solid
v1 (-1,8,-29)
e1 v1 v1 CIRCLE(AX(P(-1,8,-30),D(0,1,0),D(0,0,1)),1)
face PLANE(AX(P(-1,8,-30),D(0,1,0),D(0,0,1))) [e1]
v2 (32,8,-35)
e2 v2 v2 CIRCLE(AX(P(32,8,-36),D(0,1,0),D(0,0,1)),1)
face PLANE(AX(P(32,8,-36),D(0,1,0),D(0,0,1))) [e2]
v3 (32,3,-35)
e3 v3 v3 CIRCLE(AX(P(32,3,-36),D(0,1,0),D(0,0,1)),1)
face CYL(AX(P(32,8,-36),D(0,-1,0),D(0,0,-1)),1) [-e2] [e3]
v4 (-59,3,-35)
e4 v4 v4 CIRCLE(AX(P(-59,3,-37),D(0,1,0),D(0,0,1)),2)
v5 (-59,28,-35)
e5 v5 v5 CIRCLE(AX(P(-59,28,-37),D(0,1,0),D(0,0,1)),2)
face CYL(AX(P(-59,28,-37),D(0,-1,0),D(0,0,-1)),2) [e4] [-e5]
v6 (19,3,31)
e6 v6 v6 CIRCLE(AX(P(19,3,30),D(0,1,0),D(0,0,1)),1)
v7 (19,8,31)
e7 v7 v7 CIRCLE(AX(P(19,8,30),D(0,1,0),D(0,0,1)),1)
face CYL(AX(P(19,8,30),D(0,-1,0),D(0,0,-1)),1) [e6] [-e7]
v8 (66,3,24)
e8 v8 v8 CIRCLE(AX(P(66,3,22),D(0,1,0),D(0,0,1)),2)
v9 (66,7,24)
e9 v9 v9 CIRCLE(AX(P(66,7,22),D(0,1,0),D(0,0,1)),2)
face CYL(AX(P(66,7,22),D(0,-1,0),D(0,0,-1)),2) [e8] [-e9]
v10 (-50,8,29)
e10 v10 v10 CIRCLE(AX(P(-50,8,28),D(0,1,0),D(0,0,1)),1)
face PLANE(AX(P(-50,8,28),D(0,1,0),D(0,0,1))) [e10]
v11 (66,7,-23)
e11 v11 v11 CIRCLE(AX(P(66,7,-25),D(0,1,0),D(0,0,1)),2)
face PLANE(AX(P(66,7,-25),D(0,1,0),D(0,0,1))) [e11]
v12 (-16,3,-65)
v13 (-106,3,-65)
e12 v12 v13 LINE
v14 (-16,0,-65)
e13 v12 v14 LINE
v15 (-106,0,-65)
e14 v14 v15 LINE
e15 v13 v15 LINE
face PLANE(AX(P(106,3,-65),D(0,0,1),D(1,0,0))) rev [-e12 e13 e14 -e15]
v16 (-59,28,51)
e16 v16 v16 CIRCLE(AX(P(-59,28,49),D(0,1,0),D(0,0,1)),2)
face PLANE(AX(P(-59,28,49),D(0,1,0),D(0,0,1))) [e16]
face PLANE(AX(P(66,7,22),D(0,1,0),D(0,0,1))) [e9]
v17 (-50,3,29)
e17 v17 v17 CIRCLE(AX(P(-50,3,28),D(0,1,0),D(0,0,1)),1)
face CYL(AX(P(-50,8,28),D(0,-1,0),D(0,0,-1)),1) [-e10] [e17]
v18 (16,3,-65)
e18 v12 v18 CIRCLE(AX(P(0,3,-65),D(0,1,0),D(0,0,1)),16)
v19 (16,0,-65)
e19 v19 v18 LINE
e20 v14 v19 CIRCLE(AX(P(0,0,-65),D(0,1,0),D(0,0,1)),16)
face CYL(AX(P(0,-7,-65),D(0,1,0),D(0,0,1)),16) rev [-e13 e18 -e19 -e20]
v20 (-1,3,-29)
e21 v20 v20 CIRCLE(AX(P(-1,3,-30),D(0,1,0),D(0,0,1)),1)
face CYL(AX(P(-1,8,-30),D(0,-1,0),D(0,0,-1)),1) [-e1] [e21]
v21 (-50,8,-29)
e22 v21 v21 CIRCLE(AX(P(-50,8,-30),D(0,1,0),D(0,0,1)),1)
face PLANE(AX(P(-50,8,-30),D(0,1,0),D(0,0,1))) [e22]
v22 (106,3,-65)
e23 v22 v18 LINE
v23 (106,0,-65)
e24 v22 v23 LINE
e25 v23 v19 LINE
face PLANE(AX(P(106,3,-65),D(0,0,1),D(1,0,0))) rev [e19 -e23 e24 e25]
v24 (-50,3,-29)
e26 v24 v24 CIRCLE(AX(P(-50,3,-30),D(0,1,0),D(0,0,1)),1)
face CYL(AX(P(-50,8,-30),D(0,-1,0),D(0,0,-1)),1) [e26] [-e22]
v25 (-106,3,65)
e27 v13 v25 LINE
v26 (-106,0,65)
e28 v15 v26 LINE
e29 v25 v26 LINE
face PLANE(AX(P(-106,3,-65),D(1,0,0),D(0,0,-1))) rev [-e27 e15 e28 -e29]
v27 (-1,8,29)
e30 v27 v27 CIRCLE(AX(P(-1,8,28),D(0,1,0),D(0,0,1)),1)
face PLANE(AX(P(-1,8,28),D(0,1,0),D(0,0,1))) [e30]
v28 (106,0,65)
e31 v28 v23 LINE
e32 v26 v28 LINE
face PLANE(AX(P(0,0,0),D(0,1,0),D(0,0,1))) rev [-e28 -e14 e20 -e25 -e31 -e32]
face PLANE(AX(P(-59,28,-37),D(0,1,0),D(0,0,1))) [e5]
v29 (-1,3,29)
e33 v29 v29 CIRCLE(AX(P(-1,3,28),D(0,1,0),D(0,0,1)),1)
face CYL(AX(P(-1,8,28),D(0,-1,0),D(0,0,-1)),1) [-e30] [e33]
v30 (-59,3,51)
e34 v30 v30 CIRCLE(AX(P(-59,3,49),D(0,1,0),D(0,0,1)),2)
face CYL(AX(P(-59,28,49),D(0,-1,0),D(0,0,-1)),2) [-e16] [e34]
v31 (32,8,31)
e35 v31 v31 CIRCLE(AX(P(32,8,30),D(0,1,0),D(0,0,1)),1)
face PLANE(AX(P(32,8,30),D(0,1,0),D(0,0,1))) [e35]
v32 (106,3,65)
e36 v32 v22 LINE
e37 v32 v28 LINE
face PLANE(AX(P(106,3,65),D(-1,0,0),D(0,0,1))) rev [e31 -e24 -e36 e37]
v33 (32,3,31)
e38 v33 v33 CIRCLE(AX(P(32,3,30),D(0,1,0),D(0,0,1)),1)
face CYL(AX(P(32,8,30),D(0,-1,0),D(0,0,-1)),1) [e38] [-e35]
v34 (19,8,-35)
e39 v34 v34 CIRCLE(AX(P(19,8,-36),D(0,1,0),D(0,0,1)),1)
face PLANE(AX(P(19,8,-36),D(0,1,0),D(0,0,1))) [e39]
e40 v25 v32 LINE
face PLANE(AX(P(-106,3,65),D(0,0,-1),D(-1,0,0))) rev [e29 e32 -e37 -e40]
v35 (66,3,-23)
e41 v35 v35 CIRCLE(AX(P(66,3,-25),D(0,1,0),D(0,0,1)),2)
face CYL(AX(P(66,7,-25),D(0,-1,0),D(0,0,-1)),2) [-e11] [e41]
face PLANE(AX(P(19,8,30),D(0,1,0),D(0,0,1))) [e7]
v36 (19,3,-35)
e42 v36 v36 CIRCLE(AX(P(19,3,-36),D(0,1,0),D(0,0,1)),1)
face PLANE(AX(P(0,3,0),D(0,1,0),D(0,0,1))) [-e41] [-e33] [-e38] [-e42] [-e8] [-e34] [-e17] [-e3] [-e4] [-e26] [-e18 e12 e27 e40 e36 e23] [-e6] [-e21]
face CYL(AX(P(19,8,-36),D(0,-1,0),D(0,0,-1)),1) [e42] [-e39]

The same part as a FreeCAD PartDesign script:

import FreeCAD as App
import Part
import Sketcher

V = App.Vector
Q = App.Units.Quantity


def add_polygon(sketch, points):
    """Adds a closed chain of lines whose ends are joined by coincident constraints."""
    first, n = sketch.GeometryCount, len(points)
    for a, b in zip(points, points[1:] + points[:1]):
        sketch.addGeometry(Part.LineSegment(App.Vector(*a, 0), App.Vector(*b, 0)), False)
    for i in range(n):
        sketch.addConstraint(Sketcher.Constraint("Coincident", first + i, 2, first + (i + 1) % n, 1))

doc = App.newDocument("Part")
body = doc.addObject("PartDesign::Body", "Body")

# Sketch on XZ plane
sketch1 = body.newObject("Sketcher::SketchObject", "Sketch")
sketch1.AttachmentSupport = (doc.getObject("XZ_Plane"), [""])
sketch1.MapMode = "FlatFace"
add_polygon(sketch1, [(-106, -65), (-106, 65), (106, 65), (106, -65)])  # lines 0-3
sketch1.addConstraint(Sketcher.Constraint("Vertical", 0))
sketch1.addConstraint(Sketcher.Constraint("Horizontal", 1))
sketch1.addConstraint(Sketcher.Constraint("Vertical", 2))
sketch1.addConstraint(Sketcher.Constraint("Horizontal", 3))
sketch1.addConstraint(Sketcher.Constraint("Symmetric", 0, 2, 2, 2, -1, 1))
sketch1.addConstraint(Sketcher.Constraint("DistanceX", 1, 1, 1, 2, Q("212 mm")))
sketch1.addConstraint(Sketcher.Constraint("DistanceY", 0, 1, 0, 2, Q("130 mm")))
pad1 = body.newObject("PartDesign::Pad", "Pad")
pad1.Profile = sketch1
pad1.Length = 3
pad1.Reversed = True

# Sketch on XZ plane
sketch2 = body.newObject("Sketcher::SketchObject", "Sketch001")
sketch2.AttachmentSupport = (doc.getObject("XZ_Plane"), [""])
sketch2.MapMode = "FlatFace"
sketch2.AttachmentOffset = App.Placement(V(0, 0, -3), App.Rotation())
sketch2.addGeometry(Part.Circle(V(66, -25, 0), V(0, 0, 1), 2), False)
sketch2.addGeometry(Part.Circle(V(66, 22, 0), V(0, 0, 1), 2), False)
sketch2.addConstraint(Sketcher.Constraint("Equal", 0, 1))
sketch2.addConstraint(Sketcher.Constraint("Vertical", 0, 3, 1, 3))
sketch2.addConstraint(Sketcher.Constraint("Diameter", 0, Q("4 mm")))
sketch2.addConstraint(Sketcher.Constraint("DistanceX", -1, 1, 0, 3, Q("66 mm")))
sketch2.addConstraint(Sketcher.Constraint("DistanceY", 0, 3, -1, 1, Q("25 mm")))
sketch2.addConstraint(Sketcher.Constraint("DistanceY", -1, 1, 1, 3, Q("22 mm")))
pad2 = body.newObject("PartDesign::Pad", "Pad001")
pad2.Profile = sketch2
pad2.Length = 4
pad2.Reversed = True

# Sketch on XZ plane
sketch3 = body.newObject("Sketcher::SketchObject", "Sketch002")
sketch3.AttachmentSupport = (doc.getObject("XZ_Plane"), [""])
sketch3.MapMode = "FlatFace"
sketch3.AttachmentOffset = App.Placement(V(0, 0, -3), App.Rotation())
sketch3.addGeometry(Part.Circle(V(-50, -30, 0), V(0, 0, 1), 1), False)
sketch3.addGeometry(Part.Circle(V(-1, -30, 0), V(0, 0, 1), 1), False)
sketch3.addGeometry(Part.Circle(V(-1, 28, 0), V(0, 0, 1), 1), False)
sketch3.addGeometry(Part.Circle(V(-50, 28, 0), V(0, 0, 1), 1), False)
sketch3.addConstraint(Sketcher.Constraint("Equal", 0, 1))
sketch3.addConstraint(Sketcher.Constraint("Equal", 1, 2))
sketch3.addConstraint(Sketcher.Constraint("Equal", 2, 3))
sketch3.addConstraint(Sketcher.Constraint("Horizontal", 0, 3, 1, 3))
sketch3.addConstraint(Sketcher.Constraint("Horizontal", 2, 3, 3, 3))
sketch3.addConstraint(Sketcher.Constraint("Vertical", 1, 3, 2, 3))
sketch3.addConstraint(Sketcher.Constraint("Vertical", 0, 3, 3, 3))
sketch3.addConstraint(Sketcher.Constraint("Diameter", 0, Q("2 mm")))
sketch3.addConstraint(Sketcher.Constraint("DistanceX", 0, 3, -1, 1, Q("50 mm")))
sketch3.addConstraint(Sketcher.Constraint("DistanceY", 0, 3, -1, 1, Q("30 mm")))
sketch3.addConstraint(Sketcher.Constraint("DistanceX", 1, 3, -1, 1, Q("1 mm")))
sketch3.addConstraint(Sketcher.Constraint("DistanceY", -1, 1, 2, 3, Q("28 mm")))
pad3 = body.newObject("PartDesign::Pad", "Pad002")
pad3.Profile = sketch3
pad3.Length = 5
pad3.Reversed = True

# Sketch on XZ plane
sketch4 = body.newObject("Sketcher::SketchObject", "Sketch003")
sketch4.AttachmentSupport = (doc.getObject("XZ_Plane"), [""])
sketch4.MapMode = "FlatFace"
sketch4.AttachmentOffset = App.Placement(V(0, 0, -3), App.Rotation())
sketch4.addGeometry(Part.Circle(V(-59, 49, 0), V(0, 0, 1), 2), False)
sketch4.addGeometry(Part.Circle(V(-59, -37, 0), V(0, 0, 1), 2), False)
sketch4.addConstraint(Sketcher.Constraint("Equal", 0, 1))
sketch4.addConstraint(Sketcher.Constraint("Vertical", 0, 3, 1, 3))
sketch4.addConstraint(Sketcher.Constraint("Diameter", 0, Q("4 mm")))
sketch4.addConstraint(Sketcher.Constraint("DistanceX", 0, 3, -1, 1, Q("59 mm")))
sketch4.addConstraint(Sketcher.Constraint("DistanceY", -1, 1, 0, 3, Q("49 mm")))
sketch4.addConstraint(Sketcher.Constraint("DistanceY", 1, 3, -1, 1, Q("37 mm")))
pad4 = body.newObject("PartDesign::Pad", "Pad003")
pad4.Profile = sketch4
pad4.Length = 25
pad4.Reversed = True

# Sketch on XZ plane
sketch5 = body.newObject("Sketcher::SketchObject", "Sketch004")
sketch5.AttachmentSupport = (doc.getObject("XZ_Plane"), [""])
sketch5.MapMode = "FlatFace"
sketch5.AttachmentOffset = App.Placement(V(0, 0, -3), App.Rotation())
sketch5.addGeometry(Part.Circle(V(19, -36, 0), V(0, 0, 1), 1), False)
sketch5.addGeometry(Part.Circle(V(32, -36, 0), V(0, 0, 1), 1), False)
sketch5.addGeometry(Part.Circle(V(32, 30, 0), V(0, 0, 1), 1), False)
sketch5.addGeometry(Part.Circle(V(19, 30, 0), V(0, 0, 1), 1), False)
sketch5.addConstraint(Sketcher.Constraint("Equal", 0, 1))
sketch5.addConstraint(Sketcher.Constraint("Equal", 1, 2))
sketch5.addConstraint(Sketcher.Constraint("Equal", 2, 3))
sketch5.addConstraint(Sketcher.Constraint("Horizontal", 0, 3, 1, 3))
sketch5.addConstraint(Sketcher.Constraint("Horizontal", 2, 3, 3, 3))
sketch5.addConstraint(Sketcher.Constraint("Vertical", 1, 3, 2, 3))
sketch5.addConstraint(Sketcher.Constraint("Vertical", 0, 3, 3, 3))
sketch5.addConstraint(Sketcher.Constraint("Diameter", 0, Q("2 mm")))
sketch5.addConstraint(Sketcher.Constraint("DistanceX", -1, 1, 0, 3, Q("19 mm")))
sketch5.addConstraint(Sketcher.Constraint("DistanceY", 0, 3, -1, 1, Q("36 mm")))
sketch5.addConstraint(Sketcher.Constraint("DistanceX", -1, 1, 1, 3, Q("32 mm")))
sketch5.addConstraint(Sketcher.Constraint("DistanceY", -1, 1, 2, 3, Q("30 mm")))
pad5 = body.newObject("PartDesign::Pad", "Pad004")
pad5.Profile = sketch5
pad5.Length = 5
pad5.Reversed = True

# Sketch on XZ plane
sketch6 = body.newObject("Sketcher::SketchObject", "Sketch005")
sketch6.AttachmentSupport = (doc.getObject("XZ_Plane"), [""])
sketch6.MapMode = "FlatFace"
sketch6.AttachmentOffset = App.Placement(V(0, 0, -3), App.Rotation())
sketch6.addGeometry(Part.Circle(V(0, -65, 0), V(0, 0, 1), 16), False)
sketch6.addConstraint(Sketcher.Constraint("PointOnObject", 0, 3, -2))
sketch6.addConstraint(Sketcher.Constraint("Diameter", 0, Q("32 mm")))
sketch6.addConstraint(Sketcher.Constraint("DistanceY", 0, 3, -1, 1, Q("65 mm")))
pocket1 = body.newObject("PartDesign::Pocket", "Pocket")
pocket1.Profile = sketch6
pocket1.Length = 10
pocket1.Reversed = True

doc.recompute()
